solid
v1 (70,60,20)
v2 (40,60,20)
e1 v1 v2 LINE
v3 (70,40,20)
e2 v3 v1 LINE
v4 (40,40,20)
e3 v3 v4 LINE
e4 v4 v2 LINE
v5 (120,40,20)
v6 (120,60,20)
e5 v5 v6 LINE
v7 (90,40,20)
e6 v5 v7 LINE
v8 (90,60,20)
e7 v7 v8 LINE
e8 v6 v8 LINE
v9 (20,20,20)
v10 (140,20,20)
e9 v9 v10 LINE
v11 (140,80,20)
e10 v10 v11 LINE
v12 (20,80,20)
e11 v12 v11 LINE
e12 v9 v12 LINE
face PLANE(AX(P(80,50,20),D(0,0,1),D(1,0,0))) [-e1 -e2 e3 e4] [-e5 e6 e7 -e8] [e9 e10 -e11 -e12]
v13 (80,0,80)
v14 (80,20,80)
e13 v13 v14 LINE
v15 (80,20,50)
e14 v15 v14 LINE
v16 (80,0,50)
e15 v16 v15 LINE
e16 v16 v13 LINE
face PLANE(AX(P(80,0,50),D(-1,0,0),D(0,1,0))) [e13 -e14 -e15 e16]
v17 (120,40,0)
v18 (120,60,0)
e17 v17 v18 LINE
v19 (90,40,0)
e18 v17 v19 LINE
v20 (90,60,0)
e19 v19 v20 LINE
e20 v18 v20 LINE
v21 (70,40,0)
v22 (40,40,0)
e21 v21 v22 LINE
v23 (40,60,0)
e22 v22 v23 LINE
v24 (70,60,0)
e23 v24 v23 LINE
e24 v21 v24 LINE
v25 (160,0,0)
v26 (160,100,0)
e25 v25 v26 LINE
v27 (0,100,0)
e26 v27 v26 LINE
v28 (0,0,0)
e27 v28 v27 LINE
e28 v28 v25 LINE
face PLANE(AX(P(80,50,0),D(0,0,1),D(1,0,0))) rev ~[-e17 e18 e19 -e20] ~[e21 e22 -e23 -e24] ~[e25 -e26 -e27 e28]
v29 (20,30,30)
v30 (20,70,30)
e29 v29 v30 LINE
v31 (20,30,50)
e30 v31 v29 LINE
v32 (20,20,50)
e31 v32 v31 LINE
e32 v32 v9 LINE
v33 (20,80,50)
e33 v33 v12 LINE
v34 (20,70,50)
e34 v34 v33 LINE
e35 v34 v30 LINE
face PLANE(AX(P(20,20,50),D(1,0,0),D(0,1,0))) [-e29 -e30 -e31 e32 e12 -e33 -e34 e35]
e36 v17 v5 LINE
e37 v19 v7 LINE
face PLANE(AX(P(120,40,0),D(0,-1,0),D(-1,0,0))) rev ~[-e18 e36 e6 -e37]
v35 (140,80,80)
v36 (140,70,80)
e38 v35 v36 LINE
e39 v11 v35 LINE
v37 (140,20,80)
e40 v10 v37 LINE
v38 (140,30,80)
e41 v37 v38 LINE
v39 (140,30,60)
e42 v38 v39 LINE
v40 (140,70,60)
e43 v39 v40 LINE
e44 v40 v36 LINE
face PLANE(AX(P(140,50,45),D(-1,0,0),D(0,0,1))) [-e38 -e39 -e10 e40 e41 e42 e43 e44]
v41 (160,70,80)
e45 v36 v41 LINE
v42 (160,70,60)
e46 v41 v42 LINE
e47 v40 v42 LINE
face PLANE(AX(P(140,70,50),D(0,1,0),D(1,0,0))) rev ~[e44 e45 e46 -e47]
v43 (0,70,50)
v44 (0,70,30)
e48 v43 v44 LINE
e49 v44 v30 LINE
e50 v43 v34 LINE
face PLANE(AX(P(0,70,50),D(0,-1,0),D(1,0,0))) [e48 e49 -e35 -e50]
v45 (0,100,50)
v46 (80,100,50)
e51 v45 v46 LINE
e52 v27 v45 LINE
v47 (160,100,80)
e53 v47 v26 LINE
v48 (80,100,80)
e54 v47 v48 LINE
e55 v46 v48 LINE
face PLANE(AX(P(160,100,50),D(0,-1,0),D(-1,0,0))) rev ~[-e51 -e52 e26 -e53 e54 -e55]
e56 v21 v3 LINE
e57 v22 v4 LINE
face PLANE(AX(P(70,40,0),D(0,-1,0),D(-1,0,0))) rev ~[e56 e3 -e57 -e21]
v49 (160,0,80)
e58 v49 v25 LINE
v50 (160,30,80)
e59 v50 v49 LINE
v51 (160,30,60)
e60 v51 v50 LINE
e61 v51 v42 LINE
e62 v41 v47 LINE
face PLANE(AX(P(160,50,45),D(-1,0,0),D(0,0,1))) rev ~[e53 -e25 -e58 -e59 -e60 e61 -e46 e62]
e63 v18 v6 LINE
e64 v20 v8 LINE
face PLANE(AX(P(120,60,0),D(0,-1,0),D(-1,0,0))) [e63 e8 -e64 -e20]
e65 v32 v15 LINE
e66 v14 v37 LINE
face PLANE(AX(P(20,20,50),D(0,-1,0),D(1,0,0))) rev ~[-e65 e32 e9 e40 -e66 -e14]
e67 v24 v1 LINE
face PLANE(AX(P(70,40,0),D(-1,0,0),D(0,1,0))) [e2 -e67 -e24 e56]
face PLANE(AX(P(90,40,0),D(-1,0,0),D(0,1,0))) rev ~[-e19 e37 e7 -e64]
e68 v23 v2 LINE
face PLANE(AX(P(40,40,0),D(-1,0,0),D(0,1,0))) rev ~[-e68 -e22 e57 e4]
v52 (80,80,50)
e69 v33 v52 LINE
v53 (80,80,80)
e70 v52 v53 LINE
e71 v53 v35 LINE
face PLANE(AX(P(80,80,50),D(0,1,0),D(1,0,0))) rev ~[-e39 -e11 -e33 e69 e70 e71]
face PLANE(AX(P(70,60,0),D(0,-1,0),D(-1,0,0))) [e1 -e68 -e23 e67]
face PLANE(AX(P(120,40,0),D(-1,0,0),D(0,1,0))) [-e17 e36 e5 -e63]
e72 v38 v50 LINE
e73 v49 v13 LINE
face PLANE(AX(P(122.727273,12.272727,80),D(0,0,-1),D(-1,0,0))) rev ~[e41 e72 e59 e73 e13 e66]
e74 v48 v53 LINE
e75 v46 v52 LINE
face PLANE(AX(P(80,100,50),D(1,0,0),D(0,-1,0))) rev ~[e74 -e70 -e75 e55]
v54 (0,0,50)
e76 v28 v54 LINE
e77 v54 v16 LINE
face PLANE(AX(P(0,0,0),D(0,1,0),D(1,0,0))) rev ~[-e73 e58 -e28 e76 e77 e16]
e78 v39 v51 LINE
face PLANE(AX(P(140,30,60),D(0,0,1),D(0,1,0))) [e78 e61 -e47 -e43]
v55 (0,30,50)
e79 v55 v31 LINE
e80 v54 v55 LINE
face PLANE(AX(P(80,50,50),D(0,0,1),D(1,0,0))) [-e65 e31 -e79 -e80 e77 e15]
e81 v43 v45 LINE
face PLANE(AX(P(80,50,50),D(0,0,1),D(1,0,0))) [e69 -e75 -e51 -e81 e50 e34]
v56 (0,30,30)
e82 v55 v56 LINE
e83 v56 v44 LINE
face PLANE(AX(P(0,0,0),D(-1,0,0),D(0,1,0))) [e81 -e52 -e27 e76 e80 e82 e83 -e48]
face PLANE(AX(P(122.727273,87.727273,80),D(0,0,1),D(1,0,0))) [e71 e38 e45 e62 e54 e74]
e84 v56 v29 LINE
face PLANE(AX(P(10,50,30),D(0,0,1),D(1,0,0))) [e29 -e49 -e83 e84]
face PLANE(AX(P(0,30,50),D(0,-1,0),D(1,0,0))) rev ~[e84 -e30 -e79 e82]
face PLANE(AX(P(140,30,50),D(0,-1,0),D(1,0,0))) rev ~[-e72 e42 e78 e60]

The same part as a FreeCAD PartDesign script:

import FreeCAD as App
import Part
import Sketcher

doc = App.newDocument("Part")
body = doc.addObject("PartDesign::Body", "Body")

# Sketch on XY plane
sketch1 = doc.addObject("Sketcher::SketchObject", "Sketch")
body.addObject(sketch1)
sketch1.AttachmentSupport = (doc.XY_Plane, [""])
sketch1.MapMode = "FlatFace"
sketch1.addGeometry([
    Part.LineSegment(App.Vector(0, 100, 0), App.Vector(0, 0, 0)),
    Part.LineSegment(App.Vector(0, 0, 0), App.Vector(160, 0, 0)),
    Part.LineSegment(App.Vector(160, 0, 0), App.Vector(160, 100, 0)),
    Part.LineSegment(App.Vector(160, 100, 0), App.Vector(0, 100, 0)),
], False)
sketch1.addConstraint([
    Sketcher.Constraint("Coincident", 0, 2, 1, 1),
    Sketcher.Constraint("Coincident", 1, 2, 2, 1),
    Sketcher.Constraint("Coincident", 2, 2, 3, 1),
    Sketcher.Constraint("Coincident", 3, 2, 0, 1),
    Sketcher.Constraint("Vertical", 0),
    Sketcher.Constraint("Horizontal", 1),
    Sketcher.Constraint("Vertical", 2),
    Sketcher.Constraint("Horizontal", 3),
    Sketcher.Constraint("Coincident", 0, 2, -1, 1),
    Sketcher.Constraint("DistanceX", 1, 1, 1, 2, 160.0),
    Sketcher.Constraint("DistanceY", 0, 2, 0, 1, 100.0),
])
pad1 = doc.addObject("PartDesign::Pad", "Pad")
body.addObject(pad1)
pad1.Profile = sketch1
pad1.Length = 50

# Sketch on XY plane
sketch2 = doc.addObject("Sketcher::SketchObject", "Sketch001")
body.addObject(sketch2)
sketch2.AttachmentSupport = (doc.XY_Plane, [""])
sketch2.MapMode = "FlatFace"
sketch2.AttachmentOffset = App.Placement(App.Vector(0, 0, 50), App.Rotation())
sketch2.addGeometry([
    Part.LineSegment(App.Vector(0, 70, 0), App.Vector(0, 30, 0)),  # 0
    Part.LineSegment(App.Vector(0, 30, 0), App.Vector(20, 30, 0)),  # 1
    Part.LineSegment(App.Vector(20, 30, 0), App.Vector(20, 70, 0)),  # 2
    Part.LineSegment(App.Vector(20, 70, 0), App.Vector(0, 70, 0)),  # 3
    Part.LineSegment(App.Vector(140, 70, 0), App.Vector(140, 30, 0)),  # 4
    Part.LineSegment(App.Vector(140, 30, 0), App.Vector(160, 30, 0)),  # 5
    Part.LineSegment(App.Vector(160, 30, 0), App.Vector(160, 70, 0)),  # 6
    Part.LineSegment(App.Vector(160, 70, 0), App.Vector(140, 70, 0)),  # 7
], False)
sketch2.addConstraint([
    Sketcher.Constraint("Coincident", 0, 2, 1, 1),
    Sketcher.Constraint("Coincident", 1, 2, 2, 1),
    Sketcher.Constraint("Coincident", 2, 2, 3, 1),
    Sketcher.Constraint("Coincident", 3, 2, 0, 1),
    Sketcher.Constraint("Coincident", 4, 2, 5, 1),
    Sketcher.Constraint("Coincident", 5, 2, 6, 1),
    Sketcher.Constraint("Coincident", 6, 2, 7, 1),
    Sketcher.Constraint("Coincident", 7, 2, 4, 1),
    Sketcher.Constraint("Vertical", 0),
    Sketcher.Constraint("Horizontal", 1),
    Sketcher.Constraint("Vertical", 2),
    Sketcher.Constraint("Horizontal", 3),
    Sketcher.Constraint("Vertical", 4),
    Sketcher.Constraint("Horizontal", 5),
    Sketcher.Constraint("Vertical", 6),
    Sketcher.Constraint("Horizontal", 7),
    Sketcher.Constraint("PointOnObject", 0, 2, -2),
    Sketcher.Constraint("Horizontal", 1, 2, 4, 2),
    Sketcher.Constraint("Horizontal", 3, 2, 6, 2),
    Sketcher.Constraint("Equal", 3, 5),
    Sketcher.Constraint("DistanceX", 1, 1, 1, 2, 20.0),
    Sketcher.Constraint("DistanceY", 0, 2, 0, 1, 40.0),
    Sketcher.Constraint("DistanceY", -1, 1, 0, 2, 30.0),
    Sketcher.Constraint("DistanceX", -1, 1, 4, 2, 140.0),
])
pocket1 = doc.addObject("PartDesign::Pocket", "Pocket")
body.addObject(pocket1)
pocket1.Profile = sketch2
pocket1.Length = 20

# Sketch on XY plane
sketch3 = doc.addObject("Sketcher::SketchObject", "Sketch002")
body.addObject(sketch3)
sketch3.AttachmentSupport = (doc.XY_Plane, [""])
sketch3.MapMode = "FlatFace"
sketch3.addGeometry([
    Part.LineSegment(App.Vector(70, 60, 0), App.Vector(70, 40, 0)),  # 0
    Part.LineSegment(App.Vector(70, 40, 0), App.Vector(40, 40, 0)),  # 1
    Part.LineSegment(App.Vector(40, 40, 0), App.Vector(40, 60, 0)),  # 2
    Part.LineSegment(App.Vector(40, 60, 0), App.Vector(70, 60, 0)),  # 3
    Part.LineSegment(App.Vector(120, 60, 0), App.Vector(120, 40, 0)),  # 4
    Part.LineSegment(App.Vector(120, 40, 0), App.Vector(90, 40, 0)),  # 5
    Part.LineSegment(App.Vector(90, 40, 0), App.Vector(90, 60, 0)),  # 6
    Part.LineSegment(App.Vector(90, 60, 0), App.Vector(120, 60, 0)),  # 7
], False)
sketch3.addConstraint([
    Sketcher.Constraint("Coincident", 0, 2, 1, 1),
    Sketcher.Constraint("Coincident", 1, 2, 2, 1),
    Sketcher.Constraint("Coincident", 2, 2, 3, 1),
    Sketcher.Constraint("Coincident", 3, 2, 0, 1),
    Sketcher.Constraint("Coincident", 4, 2, 5, 1),
    Sketcher.Constraint("Coincident", 5, 2, 6, 1),
    Sketcher.Constraint("Coincident", 6, 2, 7, 1),
    Sketcher.Constraint("Coincident", 7, 2, 4, 1),
    Sketcher.Constraint("Vertical", 0),
    Sketcher.Constraint("Horizontal", 1),
    Sketcher.Constraint("Vertical", 2),
    Sketcher.Constraint("Horizontal", 3),
    Sketcher.Constraint("Vertical", 4),
    Sketcher.Constraint("Horizontal", 5),
    Sketcher.Constraint("Vertical", 6),
    Sketcher.Constraint("Horizontal", 7),
    Sketcher.Constraint("Horizontal", 1, 2, 4, 2),
    Sketcher.Constraint("Horizontal", 3, 2, 6, 2),
    Sketcher.Constraint("Equal", 3, 5),
    Sketcher.Constraint("DistanceX", 1, 2, 1, 1, 30.0),
    Sketcher.Constraint("DistanceY", 0, 2, 0, 1, 20.0),
    Sketcher.Constraint("DistanceX", -1, 1, 0, 2, 70.0),
    Sketcher.Constraint("DistanceY", -1, 1, 0, 2, 40.0),
    Sketcher.Constraint("DistanceX", -1, 1, 4, 2, 120.0),
])
pocket2 = doc.addObject("PartDesign::Pocket", "Pocket001")
body.addObject(pocket2)
pocket2.Profile = sketch3
pocket2.Length = 20
pocket2.Reversed = True

# Sketch on XY plane
sketch4 = doc.addObject("Sketcher::SketchObject", "Sketch003")
body.addObject(sketch4)
sketch4.AttachmentSupport = (doc.XY_Plane, [""])
sketch4.MapMode = "FlatFace"
sketch4.AttachmentOffset = App.Placement(App.Vector(0, 0, 50), App.Rotation())
sketch4.addGeometry([
    Part.LineSegment(App.Vector(20, 80, 0), App.Vector(20, 20, 0)),
    Part.LineSegment(App.Vector(20, 20, 0), App.Vector(140, 20, 0)),
    Part.LineSegment(App.Vector(140, 20, 0), App.Vector(140, 80, 0)),
    Part.LineSegment(App.Vector(140, 80, 0), App.Vector(20, 80, 0)),
], False)
sketch4.addConstraint([
    Sketcher.Constraint("Coincident", 0, 2, 1, 1),
    Sketcher.Constraint("Coincident", 1, 2, 2, 1),
    Sketcher.Constraint("Coincident", 2, 2, 3, 1),
    Sketcher.Constraint("Coincident", 3, 2, 0, 1),
    Sketcher.Constraint("Vertical", 0),
    Sketcher.Constraint("Horizontal", 1),
    Sketcher.Constraint("Vertical", 2),
    Sketcher.Constraint("Horizontal", 3),
    Sketcher.Constraint("DistanceX", 1, 1, 1, 2, 120.0),
    Sketcher.Constraint("DistanceY", 0, 2, 0, 1, 60.0),
    Sketcher.Constraint("DistanceX", -1, 1, 0, 2, 20.0),
    Sketcher.Constraint("DistanceY", -1, 1, 0, 2, 20.0),
])
pocket3 = doc.addObject("PartDesign::Pocket", "Pocket002")
body.addObject(pocket3)
pocket3.Profile = sketch4
pocket3.Length = 30

# Sketch on XY plane
sketch5 = doc.addObject("Sketcher::SketchObject", "Sketch004")
body.addObject(sketch5)
sketch5.AttachmentSupport = (doc.XY_Plane, [""])
sketch5.MapMode = "FlatFace"
sketch5.AttachmentOffset = App.Placement(App.Vector(0, 0, 50), App.Rotation())
sketch5.addGeometry([
    Part.LineSegment(App.Vector(80, 100, 0), App.Vector(80, 80, 0)),  # 0
    Part.LineSegment(App.Vector(80, 80, 0), App.Vector(140, 80, 0)),  # 1
    Part.LineSegment(App.Vector(140, 80, 0), App.Vector(140, 70, 0)),  # 2
    Part.LineSegment(App.Vector(140, 70, 0), App.Vector(160, 70, 0)),  # 3
    Part.LineSegment(App.Vector(160, 70, 0), App.Vector(160, 100, 0)),  # 4
    Part.LineSegment(App.Vector(160, 100, 0), App.Vector(80, 100, 0)),  # 5
    Part.LineSegment(App.Vector(80, 20, 0), App.Vector(80, 0, 0)),  # 6
    Part.LineSegment(App.Vector(80, 0, 0), App.Vector(160, 0, 0)),  # 7
    Part.LineSegment(App.Vector(160, 0, 0), App.Vector(160, 30, 0)),  # 8
    Part.LineSegment(App.Vector(160, 30, 0), App.Vector(140, 30, 0)),  # 9
    Part.LineSegment(App.Vector(140, 30, 0), App.Vector(140, 20, 0)),  # 10
    Part.LineSegment(App.Vector(140, 20, 0), App.Vector(80, 20, 0)),  # 11
], False)
sketch5.addConstraint([
    Sketcher.Constraint("Coincident", 0, 2, 1, 1),
    Sketcher.Constraint("Coincident", 1, 2, 2, 1),
    Sketcher.Constraint("Coincident", 2, 2, 3, 1),
    Sketcher.Constraint("Coincident", 3, 2, 4, 1),
    Sketcher.Constraint("Coincident", 4, 2, 5, 1),
    Sketcher.Constraint("Coincident", 5, 2, 0, 1),
    Sketcher.Constraint("Coincident", 6, 2, 7, 1),
    Sketcher.Constraint("Coincident", 7, 2, 8, 1),
    Sketcher.Constraint("Coincident", 8, 2, 9, 1),
    Sketcher.Constraint("Coincident", 9, 2, 10, 1),
    Sketcher.Constraint("Coincident", 10, 2, 11, 1),
    Sketcher.Constraint("Coincident", 11, 2, 6, 1),
    Sketcher.Constraint("Vertical", 0),
    Sketcher.Constraint("Horizontal", 1),
    Sketcher.Constraint("Vertical", 2),
    Sketcher.Constraint("Horizontal", 3),
    Sketcher.Constraint("Vertical", 4),
    Sketcher.Constraint("Horizontal", 5),
    Sketcher.Constraint("Vertical", 6),
    Sketcher.Constraint("Horizontal", 7),
    Sketcher.Constraint("Vertical", 8),
    Sketcher.Constraint("Horizontal", 9),
    Sketcher.Constraint("Vertical", 10),
    Sketcher.Constraint("Horizontal", 11),
    Sketcher.Constraint("PointOnObject", 6, 2, -1),
    Sketcher.Constraint("Vertical", 5, 2, 6, 2),
    Sketcher.Constraint("Vertical", 4, 2, 7, 2),
    Sketcher.Constraint("Vertical", 2, 2, 9, 2),
    Sketcher.Constraint("Equal", 9, 0),
    Sketcher.Constraint("Equal", 0, 6),
    Sketcher.Constraint("Equal", 4, 8),
    Sketcher.Constraint("DistanceX", 1, 1, 1, 2, 60.0),
    Sketcher.Constraint("DistanceX", 3, 1, 3, 2, 20.0),
    Sketcher.Constraint("DistanceY", 2, 2, 2, 1, 10.0),
    Sketcher.Constraint("DistanceX", -1, 1, 0, 2, 80.0),
    Sketcher.Constraint("DistanceY", -1, 1, 0, 2, 80.0),
])
pad2 = doc.addObject("PartDesign::Pad", "Pad001")
body.addObject(pad2)
pad2.Profile = sketch5
pad2.Length = 30

# Sketch on YZ plane
sketch6 = doc.addObject("Sketcher::SketchObject", "Sketch005")
body.addObject(sketch6)
sketch6.AttachmentSupport = (doc.YZ_Plane, [""])
sketch6.MapMode = "FlatFace"
sketch6.AttachmentOffset = App.Placement(App.Vector(0, 0, 140), App.Rotation())
sketch6.addGeometry([
    Part.LineSegment(App.Vector(70, 30, 0), App.Vector(30, 30, 0)),
    Part.LineSegment(App.Vector(30, 30, 0), App.Vector(30, 60, 0)),
    Part.LineSegment(App.Vector(30, 60, 0), App.Vector(70, 60, 0)),
    Part.LineSegment(App.Vector(70, 60, 0), App.Vector(70, 30, 0)),
], False)
sketch6.addConstraint([
    Sketcher.Constraint("Coincident", 0, 2, 1, 1),
    Sketcher.Constraint("Coincident", 1, 2, 2, 1),
    Sketcher.Constraint("Coincident", 2, 2, 3, 1),
    Sketcher.Constraint("Coincident", 3, 2, 0, 1),
    Sketcher.Constraint("Horizontal", 0),
    Sketcher.Constraint("Vertical", 1),
    Sketcher.Constraint("Horizontal", 2),
    Sketcher.Constraint("Vertical", 3),
    Sketcher.Constraint("DistanceX", 0, 2, 0, 1, 40.0),
    Sketcher.Constraint("DistanceY", 1, 1, 1, 2, 30.0),
    Sketcher.Constraint("DistanceX", -1, 1, 0, 2, 30.0),
    Sketcher.Constraint("DistanceY", -1, 1, 0, 2, 30.0),
])
pad3 = doc.addObject("PartDesign::Pad", "Pad002")
body.addObject(pad3)
pad3.Profile = sketch6
pad3.Length = 20

doc.recompute()
